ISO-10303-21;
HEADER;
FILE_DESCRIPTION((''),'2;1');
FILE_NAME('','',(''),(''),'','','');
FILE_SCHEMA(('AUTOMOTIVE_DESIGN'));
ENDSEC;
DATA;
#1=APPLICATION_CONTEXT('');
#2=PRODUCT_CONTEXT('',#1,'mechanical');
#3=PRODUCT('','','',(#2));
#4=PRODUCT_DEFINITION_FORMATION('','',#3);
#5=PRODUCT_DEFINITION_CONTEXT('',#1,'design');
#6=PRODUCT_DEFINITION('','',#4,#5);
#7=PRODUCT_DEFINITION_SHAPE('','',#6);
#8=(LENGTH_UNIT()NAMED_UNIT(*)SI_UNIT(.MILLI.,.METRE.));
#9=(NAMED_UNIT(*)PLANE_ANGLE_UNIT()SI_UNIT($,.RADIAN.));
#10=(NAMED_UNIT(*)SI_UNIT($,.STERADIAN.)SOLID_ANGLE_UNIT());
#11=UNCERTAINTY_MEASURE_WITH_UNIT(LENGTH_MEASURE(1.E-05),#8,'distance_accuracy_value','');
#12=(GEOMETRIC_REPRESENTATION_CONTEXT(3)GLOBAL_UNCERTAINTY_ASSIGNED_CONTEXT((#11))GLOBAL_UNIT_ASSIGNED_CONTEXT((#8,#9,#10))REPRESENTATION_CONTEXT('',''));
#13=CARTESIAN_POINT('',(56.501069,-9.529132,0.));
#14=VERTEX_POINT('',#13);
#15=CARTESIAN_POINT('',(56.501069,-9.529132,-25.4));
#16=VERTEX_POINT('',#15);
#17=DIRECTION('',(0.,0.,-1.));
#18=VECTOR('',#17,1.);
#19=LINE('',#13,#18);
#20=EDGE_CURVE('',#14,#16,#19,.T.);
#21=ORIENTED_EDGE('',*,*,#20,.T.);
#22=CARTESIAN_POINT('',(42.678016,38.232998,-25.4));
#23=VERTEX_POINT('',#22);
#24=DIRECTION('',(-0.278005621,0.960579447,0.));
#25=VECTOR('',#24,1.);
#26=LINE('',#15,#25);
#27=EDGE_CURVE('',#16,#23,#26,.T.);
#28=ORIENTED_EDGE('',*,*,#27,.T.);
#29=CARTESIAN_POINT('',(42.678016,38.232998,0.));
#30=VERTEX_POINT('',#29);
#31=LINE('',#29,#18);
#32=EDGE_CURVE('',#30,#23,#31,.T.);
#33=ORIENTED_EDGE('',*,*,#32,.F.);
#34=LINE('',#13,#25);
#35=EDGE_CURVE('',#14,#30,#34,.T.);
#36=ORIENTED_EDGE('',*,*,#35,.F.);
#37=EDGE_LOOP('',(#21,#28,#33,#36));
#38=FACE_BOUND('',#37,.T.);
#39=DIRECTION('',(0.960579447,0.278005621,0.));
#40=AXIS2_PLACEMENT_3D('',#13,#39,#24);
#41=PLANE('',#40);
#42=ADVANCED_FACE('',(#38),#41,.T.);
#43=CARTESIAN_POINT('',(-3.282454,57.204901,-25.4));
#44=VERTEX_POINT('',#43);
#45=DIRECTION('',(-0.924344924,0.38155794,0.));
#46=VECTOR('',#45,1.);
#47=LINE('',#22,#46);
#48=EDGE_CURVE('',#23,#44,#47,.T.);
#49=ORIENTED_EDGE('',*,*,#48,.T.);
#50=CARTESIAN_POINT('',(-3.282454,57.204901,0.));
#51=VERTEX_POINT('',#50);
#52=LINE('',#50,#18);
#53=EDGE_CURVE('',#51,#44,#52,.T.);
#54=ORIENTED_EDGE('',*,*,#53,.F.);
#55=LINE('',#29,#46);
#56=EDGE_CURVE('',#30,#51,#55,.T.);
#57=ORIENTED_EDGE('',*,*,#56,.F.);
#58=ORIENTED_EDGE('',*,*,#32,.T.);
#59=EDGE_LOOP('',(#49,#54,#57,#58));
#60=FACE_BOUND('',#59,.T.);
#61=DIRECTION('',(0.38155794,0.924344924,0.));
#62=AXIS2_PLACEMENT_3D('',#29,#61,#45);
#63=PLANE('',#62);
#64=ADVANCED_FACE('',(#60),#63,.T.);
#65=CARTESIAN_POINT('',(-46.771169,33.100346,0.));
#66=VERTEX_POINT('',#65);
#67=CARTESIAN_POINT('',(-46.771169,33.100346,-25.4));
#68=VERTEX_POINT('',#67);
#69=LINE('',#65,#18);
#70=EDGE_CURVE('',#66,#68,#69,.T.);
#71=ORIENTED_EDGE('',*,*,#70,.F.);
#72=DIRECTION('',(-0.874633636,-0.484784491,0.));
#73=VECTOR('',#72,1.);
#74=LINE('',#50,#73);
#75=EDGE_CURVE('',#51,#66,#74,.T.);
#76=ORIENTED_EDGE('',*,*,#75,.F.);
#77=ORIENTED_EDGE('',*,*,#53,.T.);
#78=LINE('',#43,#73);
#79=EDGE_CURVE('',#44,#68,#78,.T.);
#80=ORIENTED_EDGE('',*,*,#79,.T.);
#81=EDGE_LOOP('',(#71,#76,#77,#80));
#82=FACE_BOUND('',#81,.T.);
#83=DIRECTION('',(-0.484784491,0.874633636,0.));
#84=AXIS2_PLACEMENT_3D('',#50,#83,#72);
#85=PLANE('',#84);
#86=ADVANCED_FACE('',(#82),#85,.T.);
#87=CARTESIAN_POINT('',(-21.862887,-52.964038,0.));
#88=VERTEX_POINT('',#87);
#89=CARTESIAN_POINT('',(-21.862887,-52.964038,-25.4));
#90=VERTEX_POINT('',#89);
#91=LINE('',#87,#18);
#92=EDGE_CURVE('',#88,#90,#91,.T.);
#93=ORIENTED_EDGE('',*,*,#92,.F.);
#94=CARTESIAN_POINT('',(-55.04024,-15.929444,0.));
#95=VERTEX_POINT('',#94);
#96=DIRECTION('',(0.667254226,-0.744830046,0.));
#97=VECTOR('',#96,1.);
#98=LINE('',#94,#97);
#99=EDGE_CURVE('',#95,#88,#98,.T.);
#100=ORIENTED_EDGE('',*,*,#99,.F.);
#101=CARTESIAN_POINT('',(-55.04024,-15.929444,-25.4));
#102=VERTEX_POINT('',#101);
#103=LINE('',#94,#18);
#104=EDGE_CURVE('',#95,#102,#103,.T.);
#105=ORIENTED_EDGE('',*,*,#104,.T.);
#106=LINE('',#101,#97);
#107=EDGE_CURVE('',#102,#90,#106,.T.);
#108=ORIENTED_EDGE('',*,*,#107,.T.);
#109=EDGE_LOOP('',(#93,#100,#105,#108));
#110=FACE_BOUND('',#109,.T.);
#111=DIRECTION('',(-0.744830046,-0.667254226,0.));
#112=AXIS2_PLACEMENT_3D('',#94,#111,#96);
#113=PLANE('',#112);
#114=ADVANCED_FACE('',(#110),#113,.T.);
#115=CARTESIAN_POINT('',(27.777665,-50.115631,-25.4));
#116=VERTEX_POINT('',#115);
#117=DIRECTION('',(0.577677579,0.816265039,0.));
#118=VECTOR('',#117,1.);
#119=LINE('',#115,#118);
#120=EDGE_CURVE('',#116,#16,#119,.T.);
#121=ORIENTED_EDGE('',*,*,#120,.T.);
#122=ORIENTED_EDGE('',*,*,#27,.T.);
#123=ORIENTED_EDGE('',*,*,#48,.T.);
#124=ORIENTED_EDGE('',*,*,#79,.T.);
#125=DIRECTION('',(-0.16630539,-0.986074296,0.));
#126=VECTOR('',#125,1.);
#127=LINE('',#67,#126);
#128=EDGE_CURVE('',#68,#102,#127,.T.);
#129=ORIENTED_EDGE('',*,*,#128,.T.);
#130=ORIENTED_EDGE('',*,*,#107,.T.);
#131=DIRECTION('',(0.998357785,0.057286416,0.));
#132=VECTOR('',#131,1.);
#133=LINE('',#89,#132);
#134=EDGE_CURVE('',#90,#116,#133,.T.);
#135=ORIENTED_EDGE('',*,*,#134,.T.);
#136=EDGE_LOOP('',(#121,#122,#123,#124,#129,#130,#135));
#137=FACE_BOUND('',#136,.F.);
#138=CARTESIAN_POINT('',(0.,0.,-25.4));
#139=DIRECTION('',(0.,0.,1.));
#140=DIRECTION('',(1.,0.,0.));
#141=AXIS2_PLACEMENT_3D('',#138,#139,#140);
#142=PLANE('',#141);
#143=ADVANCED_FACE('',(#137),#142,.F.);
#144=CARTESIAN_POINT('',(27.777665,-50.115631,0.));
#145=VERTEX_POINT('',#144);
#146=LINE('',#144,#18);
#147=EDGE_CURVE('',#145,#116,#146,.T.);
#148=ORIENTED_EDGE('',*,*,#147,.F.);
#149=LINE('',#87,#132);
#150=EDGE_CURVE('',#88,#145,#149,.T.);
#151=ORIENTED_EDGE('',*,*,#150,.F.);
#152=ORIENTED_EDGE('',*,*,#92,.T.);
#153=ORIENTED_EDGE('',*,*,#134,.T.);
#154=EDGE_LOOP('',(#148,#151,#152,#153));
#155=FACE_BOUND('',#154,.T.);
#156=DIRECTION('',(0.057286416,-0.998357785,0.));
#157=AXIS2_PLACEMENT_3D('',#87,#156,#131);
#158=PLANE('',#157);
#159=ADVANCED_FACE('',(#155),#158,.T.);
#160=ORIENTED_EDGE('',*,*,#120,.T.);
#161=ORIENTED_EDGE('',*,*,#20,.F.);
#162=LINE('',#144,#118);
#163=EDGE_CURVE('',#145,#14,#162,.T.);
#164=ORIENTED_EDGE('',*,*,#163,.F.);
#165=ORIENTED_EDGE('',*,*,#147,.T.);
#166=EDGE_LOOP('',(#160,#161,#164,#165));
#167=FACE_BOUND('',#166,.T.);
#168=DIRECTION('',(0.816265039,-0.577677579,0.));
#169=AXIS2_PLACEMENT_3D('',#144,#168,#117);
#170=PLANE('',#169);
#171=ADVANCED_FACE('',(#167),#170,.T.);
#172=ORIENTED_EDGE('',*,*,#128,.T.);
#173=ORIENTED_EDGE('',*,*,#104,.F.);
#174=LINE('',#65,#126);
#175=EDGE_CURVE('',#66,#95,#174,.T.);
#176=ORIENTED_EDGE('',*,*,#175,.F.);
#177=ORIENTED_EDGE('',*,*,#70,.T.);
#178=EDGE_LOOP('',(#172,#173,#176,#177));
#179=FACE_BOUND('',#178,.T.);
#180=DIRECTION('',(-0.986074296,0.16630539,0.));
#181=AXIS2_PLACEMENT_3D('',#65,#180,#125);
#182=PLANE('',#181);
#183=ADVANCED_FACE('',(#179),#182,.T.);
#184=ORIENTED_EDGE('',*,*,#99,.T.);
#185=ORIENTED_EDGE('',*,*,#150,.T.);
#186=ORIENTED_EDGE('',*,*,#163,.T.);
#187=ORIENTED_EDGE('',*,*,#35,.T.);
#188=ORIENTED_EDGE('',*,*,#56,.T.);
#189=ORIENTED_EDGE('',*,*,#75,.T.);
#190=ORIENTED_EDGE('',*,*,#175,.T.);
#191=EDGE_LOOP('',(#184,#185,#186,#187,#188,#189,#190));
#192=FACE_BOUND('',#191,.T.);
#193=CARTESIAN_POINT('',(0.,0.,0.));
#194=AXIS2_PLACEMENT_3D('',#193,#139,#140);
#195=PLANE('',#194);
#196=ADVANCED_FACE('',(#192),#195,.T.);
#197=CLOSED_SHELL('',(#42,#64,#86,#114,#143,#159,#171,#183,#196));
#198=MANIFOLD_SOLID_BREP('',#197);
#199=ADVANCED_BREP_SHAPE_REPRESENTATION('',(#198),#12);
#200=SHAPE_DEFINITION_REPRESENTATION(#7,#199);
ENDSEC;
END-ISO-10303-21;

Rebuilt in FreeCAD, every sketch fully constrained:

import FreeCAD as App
import Part
import Sketcher
Q = App.Units.Quantity


def add_polygon(sketch, points):
    """Adds a closed chain of lines whose ends are joined by coincident constraints."""
    first, n = sketch.GeometryCount, len(points)
    for a, b in zip(points, points[1:] + points[:1]):
        sketch.addGeometry(Part.LineSegment(App.Vector(*a, 0), App.Vector(*b, 0)), False)
    for i in range(n):
        sketch.addConstraint(Sketcher.Constraint("Coincident", first + i, 2, first + (i + 1) % n, 1))

doc = App.newDocument("Part")
body = doc.addObject("PartDesign::Body", "Body")

sketch1 = body.newObject("Sketcher::SketchObject", "Sketch")
sketch1.AttachmentSupport = (doc.getObject("XY_Plane"), [""])
sketch1.MapMode = "FlatFace"
add_polygon(sketch1, [(-46.771169, 33.100346), (-55.04024, -15.929444), (-21.862887, -52.964038), (27.777665, -50.115631), (56.501069, -9.529132), (42.678016, 38.232998), (-3.282454, 57.204901)])
sketch1.addConstraint([
    Sketcher.Constraint("Equal", 0, 1),
    Sketcher.Constraint("Equal", 1, 2),
    Sketcher.Constraint("Equal", 2, 3),
    Sketcher.Constraint("Equal", 3, 4),
    Sketcher.Constraint("Equal", 4, 5),
    Sketcher.Constraint("Equal", 5, 6),
    Sketcher.Constraint("DistanceY", -1, 1, 4, 2, 38.232998),
    Sketcher.Constraint("DistanceY", -1, 1, 5, 2, 57.204901),
    Sketcher.Constraint("DistanceY", 2, 2, 3, 2, 40.586499),
    Sketcher.Constraint("DistanceX", 0, 2, -1, 1, 55.04024),
    Sketcher.Constraint("DistanceY", 1, 2, -1, 1, 52.964038),
    Sketcher.Constraint("DistanceY", 2, 2, -1, 1, 50.115631),
    Sketcher.Constraint("DistanceX", -1, 1, 3, 2, 56.501069),
    Sketcher.Constraint("DistanceX", 6, 2, -1, 1, 46.771169),
])
pad1 = body.newObject("PartDesign::Pad", "Pad")
pad1.Profile = sketch1
pad1.Length = Q("1 in")
pad1.Reversed = True

doc.recompute()
